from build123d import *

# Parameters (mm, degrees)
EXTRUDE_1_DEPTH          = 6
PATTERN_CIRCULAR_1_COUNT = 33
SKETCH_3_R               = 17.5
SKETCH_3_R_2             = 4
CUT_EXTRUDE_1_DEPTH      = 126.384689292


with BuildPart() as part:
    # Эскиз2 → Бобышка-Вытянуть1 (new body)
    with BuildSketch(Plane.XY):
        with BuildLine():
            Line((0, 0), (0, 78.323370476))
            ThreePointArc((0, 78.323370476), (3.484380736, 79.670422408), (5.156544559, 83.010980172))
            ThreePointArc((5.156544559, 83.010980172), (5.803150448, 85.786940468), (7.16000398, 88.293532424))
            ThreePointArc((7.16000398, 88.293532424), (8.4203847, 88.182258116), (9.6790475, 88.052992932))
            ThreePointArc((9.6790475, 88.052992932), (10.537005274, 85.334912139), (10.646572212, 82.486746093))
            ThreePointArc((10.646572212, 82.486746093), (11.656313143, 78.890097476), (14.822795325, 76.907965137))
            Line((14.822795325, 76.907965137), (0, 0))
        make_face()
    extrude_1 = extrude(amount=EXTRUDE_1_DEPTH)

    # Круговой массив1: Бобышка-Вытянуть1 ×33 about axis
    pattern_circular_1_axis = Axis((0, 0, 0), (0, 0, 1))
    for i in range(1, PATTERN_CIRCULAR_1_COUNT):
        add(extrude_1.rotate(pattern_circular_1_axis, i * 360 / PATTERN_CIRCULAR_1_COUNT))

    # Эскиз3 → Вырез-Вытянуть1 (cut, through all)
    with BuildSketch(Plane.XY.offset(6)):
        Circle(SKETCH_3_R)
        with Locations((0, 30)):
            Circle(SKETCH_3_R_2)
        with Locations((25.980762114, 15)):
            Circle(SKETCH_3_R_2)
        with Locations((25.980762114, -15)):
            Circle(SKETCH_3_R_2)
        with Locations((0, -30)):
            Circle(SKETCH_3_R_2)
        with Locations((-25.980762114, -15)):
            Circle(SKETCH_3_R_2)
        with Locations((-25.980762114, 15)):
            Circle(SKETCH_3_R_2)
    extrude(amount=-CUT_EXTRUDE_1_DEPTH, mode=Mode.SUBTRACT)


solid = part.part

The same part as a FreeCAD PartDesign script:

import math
import FreeCAD as App
import Part
import Sketcher

doc = App.newDocument("Part")
params = doc.addObject("Spreadsheet::Sheet", "Params")
for row, (alias, value) in enumerate([
    ("sketch1_radius", "5.18 mm"),
    ("pad1_length", "6 mm"),
    ("sketch2_diameter", "35 mm"),
    ("sketch2_diameter2", "8 mm"),
], start=1):
    params.set(f"A{row}", alias)
    params.set(f"B{row}", "=" + value)
    params.setAlias(f"B{row}", alias)

body = doc.addObject("PartDesign::Body", "Body")

sketch1 = doc.addObject("Sketcher::SketchObject", "Sketch")
body.addObject(sketch1)
sketch1.AttachmentSupport = (doc.XY_Plane, [""])
sketch1.MapMode = "FlatFace"
sketch1.addGeometry([
    Part.LineSegment(App.Vector(0, 78.3, 0), App.Vector(0, 0, 0)),
    Part.LineSegment(App.Vector(0, 0, 0), App.Vector(14.8, 76.9, 0)),
    Part.ArcOfCircle(Part.Circle(App.Vector(15.8, 82, 0), App.Vector(0, 0, 1), 5.2), math.radians(175), math.radians(259)),
    Part.ArcOfCircle(Part.Circle(App.Vector(0, 83.5, 0), App.Vector(0, 0, 1), 10.7), math.radians(-5), math.radians(25)),
    Part.ArcOfCircle(Part.Circle(App.Vector(0, 0, 0), App.Vector(0, 0, 1), 88.6), math.radians(83.73), math.radians(85.36)),
    Part.ArcOfCircle(Part.Circle(App.Vector(15.8, 82, 0), App.Vector(0, 0, 1), 10.7), math.radians(144), math.radians(175)),
    Part.ArcOfCircle(Part.Circle(App.Vector(0, 83.5, 0), App.Vector(0, 0, 1), 5.2), math.radians(-90), math.radians(-5)),
], False)
sketch1.addConstraint([
    Sketcher.Constraint("Coincident", 0, 2, 1, 1),
    Sketcher.Constraint("Coincident", 1, 2, 2, 2),
    Sketcher.Constraint("Tangent", 2, 1, 3, 1),
    Sketcher.Constraint("Coincident", 3, 2, 4, 1),
    Sketcher.Constraint("Coincident", 4, 2, 5, 1),
    Sketcher.Constraint("Tangent", 5, 2, 6, 2),
    Sketcher.Constraint("Coincident", 6, 1, 0, 1),
    Sketcher.Constraint("Vertical", 0),
    Sketcher.Constraint("Coincident", 4, 3, -1, 1),
    Sketcher.Constraint("Coincident", 0, 2, -1, 1),
    Sketcher.Constraint("Coincident", 5, 3, 2, 3),
    Sketcher.Constraint("Coincident", 6, 3, 3, 3),
    Sketcher.Constraint("Equal", 3, 5),
    Sketcher.Constraint("PointOnObject", 3, 3, -2),
    Sketcher.Constraint("Radius", 2, 5.18),
    Sketcher.Constraint("Radius", 3, 10.695),
    Sketcher.Constraint("Radius", 4, 88.583366),
    Sketcher.Constraint("DistanceY", 0, 2, 0, 1, 78.32337),
    Sketcher.Constraint("Distance", 1, 78.32337),
    Sketcher.Constraint("DistanceX", 1, 2, 2, 3, 0.980321),
])
sketch1.setExpression("Constraints[14]", "Params.sketch1_radius")
pad1 = doc.addObject("PartDesign::Pad", "Pad")
body.addObject(pad1)
pad1.Profile = sketch1
pad1.setExpression("Length", "Params.pad1_length")
doc.recompute()

polarpattern = doc.addObject("PartDesign::PolarPattern", "PolarPattern")
body.addObject(polarpattern)
polarpattern.Originals = [pad1]
polarpattern.Axis = (doc.Z_Axis, [""])
polarpattern.Angle = 360
polarpattern.Occurrences = 33
body.Tip = polarpattern

sketch2 = doc.addObject("Sketcher::SketchObject", "Sketch001")
body.addObject(sketch2)
sketch2.AttachmentSupport = (doc.XY_Plane, [""])
sketch2.MapMode = "FlatFace"
sketch2.AttachmentOffset = App.Placement(App.Vector(0, 0, 6), App.Rotation())
sketch2.addGeometry([
    Part.Circle(App.Vector(0, 0, 0), App.Vector(0, 0, 1), 17.5),
    Part.Circle(App.Vector(0, 30, 0), App.Vector(0, 0, 1), 4),
    Part.Circle(App.Vector(26, 15, 0), App.Vector(0, 0, 1), 4),
    Part.Circle(App.Vector(26, -15, 0), App.Vector(0, 0, 1), 4),
    Part.Circle(App.Vector(0, -30, 0), App.Vector(0, 0, 1), 4),
    Part.Circle(App.Vector(-26, -15, 0), App.Vector(0, 0, 1), 4),
    Part.Circle(App.Vector(-26, 15, 0), App.Vector(0, 0, 1), 4),
], False)
sketch2.addConstraint([
    Sketcher.Constraint("Coincident", 0, 3, -1, 1),
    Sketcher.Constraint("Equal", 1, 2),
    Sketcher.Constraint("Equal", 2, 3),
    Sketcher.Constraint("Equal", 3, 4),
    Sketcher.Constraint("Equal", 4, 5),
    Sketcher.Constraint("Equal", 5, 6),
    Sketcher.Constraint("Symmetric", 1, 3, 4, 3, -1, 1),
    Sketcher.Constraint("Symmetric", 2, 3, 5, 3, -1, 1),
    Sketcher.Constraint("Symmetric", 3, 3, 6, 3, -1, 1),
    Sketcher.Constraint("Symmetric", 3, 3, 5, 3, -2),
    Sketcher.Constraint("PointOnObject", 1, 3, -2),
    Sketcher.Constraint("Diameter", 0, 35.0),
    Sketcher.Constraint("Diameter", 1, 8.0),
    Sketcher.Constraint("DistanceY", -1, 1, 1, 3, 30.0),
    Sketcher.Constraint("DistanceY", -1, 1, 2, 3, 15.0),
    Sketcher.Constraint("DistanceX", -1, 1, 2, 3, 25.980762),
])
sketch2.setExpression("Constraints[11]", "Params.sketch2_diameter")
sketch2.setExpression("Constraints[12]", "Params.sketch2_diameter2")
pocket1 = doc.addObject("PartDesign::Pocket", "Pocket")
body.addObject(pocket1)
pocket1.Profile = sketch2
pocket1.Type = "ThroughAll"

doc.recompute()
